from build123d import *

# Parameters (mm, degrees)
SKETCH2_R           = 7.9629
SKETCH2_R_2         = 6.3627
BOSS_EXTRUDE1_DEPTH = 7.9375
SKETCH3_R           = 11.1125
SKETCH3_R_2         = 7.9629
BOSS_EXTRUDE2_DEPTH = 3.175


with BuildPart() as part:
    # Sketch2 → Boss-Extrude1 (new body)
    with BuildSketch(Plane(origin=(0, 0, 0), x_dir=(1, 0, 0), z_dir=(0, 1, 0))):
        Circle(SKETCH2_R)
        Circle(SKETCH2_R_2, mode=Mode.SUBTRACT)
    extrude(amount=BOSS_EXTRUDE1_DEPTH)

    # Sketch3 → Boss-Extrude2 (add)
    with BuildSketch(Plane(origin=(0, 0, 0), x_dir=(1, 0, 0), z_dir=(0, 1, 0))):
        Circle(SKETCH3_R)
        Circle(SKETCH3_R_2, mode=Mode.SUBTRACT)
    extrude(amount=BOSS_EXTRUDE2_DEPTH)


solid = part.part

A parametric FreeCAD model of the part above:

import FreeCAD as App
import Part
import Sketcher

V = App.Vector
Q = App.Units.Quantity

doc = App.newDocument("Part")
body = doc.addObject("PartDesign::Body", "Body")

sketch1 = body.newObject("Sketcher::SketchObject", "Sketch")
sketch1.AttachmentSupport = (doc.getObject("XZ_Plane"), [""])
sketch1.MapMode = "FlatFace"
sketch1.addGeometry(Part.Circle(V(0, 0, 0), V(0, 0, 1), 8), False)
sketch1.addGeometry(Part.Circle(V(0, 0, 0), V(0, 0, 1), 6), False)
sketch1.addConstraint(Sketcher.Constraint("Coincident", 0, 3, -1, 1))
sketch1.addConstraint(Sketcher.Constraint("Coincident", 1, 3, -1, 1))
sketch1.addConstraint(Sketcher.Constraint("Diameter", 0, Q("0.627 in")))
sketch1.addConstraint(Sketcher.Constraint("Diameter", 1, Q("0.501 in")))
pad1 = body.newObject("PartDesign::Pad", "Pad")
pad1.Profile = sketch1
pad1.Length = Q("0.3125 in")
pad1.Reversed = True

sketch2 = body.newObject("Sketcher::SketchObject", "Sketch001")
sketch2.AttachmentSupport = (doc.getObject("XZ_Plane"), [""])
sketch2.MapMode = "FlatFace"
sketch2.addGeometry(Part.Circle(V(0, 0, 0), V(0, 0, 1), 11), False)
sketch2.addGeometry(Part.Circle(V(0, 0, 0), V(0, 0, 1), 8), False)
sketch2.addConstraint(Sketcher.Constraint("Coincident", 0, 3, -1, 1))
sketch2.addConstraint(Sketcher.Constraint("Coincident", 1, 3, -1, 1))
sketch2.addConstraint(Sketcher.Constraint("Diameter", 0, Q("0.875 in")))
sketch2.addConstraint(Sketcher.Constraint("Diameter", 1, Q("0.627 in")))
pad2 = body.newObject("PartDesign::Pad", "Pad001")
pad2.Profile = sketch2
pad2.Length = Q("0.125 in")
pad2.Reversed = True

doc.recompute()
